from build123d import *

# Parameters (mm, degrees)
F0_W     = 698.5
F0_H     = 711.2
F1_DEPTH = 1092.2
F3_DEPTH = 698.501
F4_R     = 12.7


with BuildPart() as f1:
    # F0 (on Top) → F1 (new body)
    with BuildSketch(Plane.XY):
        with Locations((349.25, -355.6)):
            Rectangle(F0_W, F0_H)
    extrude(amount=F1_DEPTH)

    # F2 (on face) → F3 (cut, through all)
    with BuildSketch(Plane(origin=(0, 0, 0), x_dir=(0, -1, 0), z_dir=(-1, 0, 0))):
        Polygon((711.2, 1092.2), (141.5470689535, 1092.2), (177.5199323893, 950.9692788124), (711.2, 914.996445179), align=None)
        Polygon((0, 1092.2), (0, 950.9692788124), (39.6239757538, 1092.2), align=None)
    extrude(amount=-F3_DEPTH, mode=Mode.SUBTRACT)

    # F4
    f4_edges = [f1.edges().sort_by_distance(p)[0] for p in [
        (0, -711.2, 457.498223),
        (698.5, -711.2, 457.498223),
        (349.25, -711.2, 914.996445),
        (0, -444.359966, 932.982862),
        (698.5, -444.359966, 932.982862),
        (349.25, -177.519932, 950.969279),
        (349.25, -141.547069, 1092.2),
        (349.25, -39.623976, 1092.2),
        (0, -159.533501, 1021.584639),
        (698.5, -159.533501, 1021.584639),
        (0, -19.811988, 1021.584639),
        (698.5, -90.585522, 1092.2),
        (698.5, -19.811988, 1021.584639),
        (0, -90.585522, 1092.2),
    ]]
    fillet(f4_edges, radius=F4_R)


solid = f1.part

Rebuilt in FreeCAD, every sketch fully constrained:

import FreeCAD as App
import Part
import Sketcher
from FreeCAD import Vector
Q = App.Units.Quantity


def edges_at(feature, points):
    """Names of the edges that pass closest to the given points."""
    edges = feature.Shape.Edges
    near = lambda p: min(range(len(edges)), key=lambda i: edges[i].distToShape(Part.Vertex(*p))[0])
    return sorted({f"Edge{near(p) + 1}" for p in points})


def add_polygon(sketch, points):
    """Adds a closed chain of lines whose ends are joined by coincident constraints."""
    first, n = sketch.GeometryCount, len(points)
    for a, b in zip(points, points[1:] + points[:1]):
        sketch.addGeometry(Part.LineSegment(App.Vector(*a, 0), App.Vector(*b, 0)), False)
    for i in range(n):
        sketch.addConstraint(Sketcher.Constraint("Coincident", first + i, 2, first + (i + 1) % n, 1))

doc = App.newDocument("Part")
body = doc.addObject("PartDesign::Body", "Body")

sketch1 = body.newObject("Sketcher::SketchObject", "Sketch")
sketch1.AttachmentSupport = (doc.getObject("XY_Plane"), [""])
sketch1.MapMode = "FlatFace"
add_polygon(sketch1, [(0, 0), (0, -711), (698, -711), (698, 0)])
sketch1.addConstraint(Sketcher.Constraint("Vertical", 0))
sketch1.addConstraint(Sketcher.Constraint("Horizontal", 1))
sketch1.addConstraint(Sketcher.Constraint("Vertical", 2))
sketch1.addConstraint(Sketcher.Constraint("Horizontal", 3))
sketch1.addConstraint(Sketcher.Constraint("Coincident", 3, 2, -1, 1))
sketch1.addConstraint(Sketcher.Constraint("DistanceY", 0, 2, 0, 1, Q("28 in")))
sketch1.addConstraint(Sketcher.Constraint("DistanceX", 1, 1, 1, 2, Q("27.5 in")))
pad1 = body.newObject("PartDesign::Pad", "Pad")
pad1.Profile = sketch1
pad1.Length = Q("43 in")

sketch2 = body.newObject("Sketcher::SketchObject", "Sketch001")
sketch2.AttachmentSupport = (doc.getObject("YZ_Plane"), [""])
sketch2.MapMode = "FlatFace"
add_polygon(sketch2, [(-711, 1092), (-142, 1092), (-178, 951), (-711, 915)])
add_polygon(sketch2, [(0, 1092), (0, 951), (-40, 1092)])
sketch2.addConstraint(Sketcher.Constraint("Horizontal", 0))
sketch2.addConstraint(Sketcher.Constraint("Vertical", 3))
sketch2.addConstraint(Sketcher.Constraint("Vertical", 4))
sketch2.addConstraint(Sketcher.Constraint("Horizontal", 6))
sketch2.addConstraint(Sketcher.Constraint("PointOnObject", 4, 2, -2))
sketch2.addConstraint(Sketcher.Constraint("Horizontal", 1, 2, 4, 2))
sketch2.addConstraint(Sketcher.Constraint("Horizontal", 3, 2, 5, 2))
sketch2.addConstraint(Sketcher.Constraint("DistanceY", -1, 1, 0, 2, Q("43 in")))
sketch2.addConstraint(Sketcher.Constraint("DistanceX", 2, 2, -1, 1, Q("28 in")))
sketch2.addConstraint(Sketcher.Constraint("DistanceX", 0, 1, 0, 2, 569.652931))
sketch2.addConstraint(Sketcher.Constraint("DistanceY", 4, 2, 4, 1, 141.230721))
sketch2.addConstraint(Sketcher.Constraint("DistanceX", 6, 1, 6, 2, 39.623976))
sketch2.addConstraint(Sketcher.Constraint("DistanceY", 3, 1, 3, 2, 177.203555))
sketch2.addConstraint(Sketcher.Constraint("Distance", 1, 145.740055))
pocket1 = body.newObject("PartDesign::Pocket", "Pocket")
pocket1.Profile = sketch2
pocket1.Type = "ThroughAll"
pocket1.Reversed = True
doc.recompute()

fillet = body.newObject("PartDesign::Fillet", "Fillet")
fillet.Base = (pocket1, edges_at(pocket1, [
    (0, -711.2, 457.498),
    (698.5, -711.2, 457.498),
    (349.25, -711.2, 914.996),
    (0, -444.36, 932.983),
    (698.5, -444.36, 932.983),
    (349.25, -177.52, 950.969),
    (349.25, -141.547, 1092.2),
    (349.25, -39.624, 1092.2),
    (0, -159.534, 1021.585),
    (698.5, -159.534, 1021.585),
    (0, -19.812, 1021.585),
    (698.5, -90.586, 1092.2),
    (698.5, -19.812, 1021.585),
    (0, -90.586, 1092.2),
]))
fillet.Radius = Q("0.5 in")

doc.recompute()
